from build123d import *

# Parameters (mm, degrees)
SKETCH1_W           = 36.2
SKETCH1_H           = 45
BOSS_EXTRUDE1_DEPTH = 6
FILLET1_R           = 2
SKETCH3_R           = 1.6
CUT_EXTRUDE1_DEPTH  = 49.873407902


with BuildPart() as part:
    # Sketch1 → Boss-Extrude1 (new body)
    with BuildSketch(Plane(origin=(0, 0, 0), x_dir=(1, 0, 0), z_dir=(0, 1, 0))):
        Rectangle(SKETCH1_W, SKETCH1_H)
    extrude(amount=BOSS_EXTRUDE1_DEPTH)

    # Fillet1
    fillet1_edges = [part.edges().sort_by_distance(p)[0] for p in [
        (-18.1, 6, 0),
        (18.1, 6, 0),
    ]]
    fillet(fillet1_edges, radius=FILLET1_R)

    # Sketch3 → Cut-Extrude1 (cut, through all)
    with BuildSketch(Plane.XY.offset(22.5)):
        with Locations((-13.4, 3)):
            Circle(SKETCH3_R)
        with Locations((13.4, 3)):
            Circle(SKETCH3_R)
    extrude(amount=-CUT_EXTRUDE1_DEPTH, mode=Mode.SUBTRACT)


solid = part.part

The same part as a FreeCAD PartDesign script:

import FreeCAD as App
import Part
import Sketcher
from FreeCAD import Vector
Q = App.Units.Quantity


def edges_at(feature, points):
    """Names of the edges that pass closest to the given points."""
    edges = feature.Shape.Edges
    near = lambda p: min(range(len(edges)), key=lambda i: edges[i].distToShape(Part.Vertex(*p))[0])
    return sorted({f"Edge{near(p) + 1}" for p in points})

doc = App.newDocument("Part")
body = doc.addObject("PartDesign::Body", "Body")

sketch1 = body.newObject("Sketcher::SketchObject", "Sketch")
sketch1.AttachmentSupport = (doc.getObject("XZ_Plane"), [""])
sketch1.MapMode = "FlatFace"
sketch1.addGeometry([
    Part.LineSegment(Vector(-18, -22, 0), Vector(-18, 22, 0)),
    Part.LineSegment(Vector(-18, 22, 0), Vector(18, 22, 0)),
    Part.LineSegment(Vector(18, 22, 0), Vector(18, -22, 0)),
    Part.LineSegment(Vector(18, -22, 0), Vector(-18, -22, 0)),
], False)
sketch1.addConstraint([
    Sketcher.Constraint("Coincident", 0, 2, 1, 1),
    Sketcher.Constraint("Coincident", 1, 2, 2, 1),
    Sketcher.Constraint("Coincident", 2, 2, 3, 1),
    Sketcher.Constraint("Coincident", 3, 2, 0, 1),
    Sketcher.Constraint("Vertical", 0),
    Sketcher.Constraint("Horizontal", 1),
    Sketcher.Constraint("Vertical", 2),
    Sketcher.Constraint("Horizontal", 3),
    Sketcher.Constraint("Symmetric", 0, 2, 2, 2, -1, 1),
    Sketcher.Constraint("DistanceY", 0, 1, 0, 2, Q("45 mm")),
    Sketcher.Constraint("DistanceX", 1, 1, 1, 2, Q("36.2 mm")),
])
pad1 = body.newObject("PartDesign::Pad", "Pad")
pad1.Profile = sketch1
pad1.Length = 6
pad1.Reversed = True
doc.recompute()

fillet = body.newObject("PartDesign::Fillet", "Fillet")
fillet.Base = (pad1, edges_at(pad1, [(-18.1, 6, 0), (18.1, 6, 0)]))
fillet.Radius = 2

sketch2 = body.newObject("Sketcher::SketchObject", "Sketch001")
sketch2.AttachmentSupport = (doc.getObject("XY_Plane"), [""])
sketch2.MapMode = "FlatFace"
sketch2.AttachmentOffset = App.Placement(Vector(0, 0, 22.5), App.Rotation())
sketch2.addGeometry([
    Part.Circle(Vector(-13.4, 3, 0), Vector(0, 0, 1), 1.6),
    Part.Circle(Vector(13.4, 3, 0), Vector(0, 0, 1), 1.6),
], False)
sketch2.addConstraint([
    Sketcher.Constraint("Equal", 0, 1),
    Sketcher.Constraint("Symmetric", 0, 3, 1, 3, -2),
    Sketcher.Constraint("Diameter", 0, Q("3.2 mm")),
    Sketcher.Constraint("DistanceY", -1, 1, 0, 3, Q("3 mm")),
    Sketcher.Constraint("DistanceX", 0, 3, -1, 1, Q("13.4 mm")),
])
pocket1 = body.newObject("PartDesign::Pocket", "Pocket")
pocket1.Profile = sketch2
pocket1.Type = "ThroughAll"

doc.recompute()
